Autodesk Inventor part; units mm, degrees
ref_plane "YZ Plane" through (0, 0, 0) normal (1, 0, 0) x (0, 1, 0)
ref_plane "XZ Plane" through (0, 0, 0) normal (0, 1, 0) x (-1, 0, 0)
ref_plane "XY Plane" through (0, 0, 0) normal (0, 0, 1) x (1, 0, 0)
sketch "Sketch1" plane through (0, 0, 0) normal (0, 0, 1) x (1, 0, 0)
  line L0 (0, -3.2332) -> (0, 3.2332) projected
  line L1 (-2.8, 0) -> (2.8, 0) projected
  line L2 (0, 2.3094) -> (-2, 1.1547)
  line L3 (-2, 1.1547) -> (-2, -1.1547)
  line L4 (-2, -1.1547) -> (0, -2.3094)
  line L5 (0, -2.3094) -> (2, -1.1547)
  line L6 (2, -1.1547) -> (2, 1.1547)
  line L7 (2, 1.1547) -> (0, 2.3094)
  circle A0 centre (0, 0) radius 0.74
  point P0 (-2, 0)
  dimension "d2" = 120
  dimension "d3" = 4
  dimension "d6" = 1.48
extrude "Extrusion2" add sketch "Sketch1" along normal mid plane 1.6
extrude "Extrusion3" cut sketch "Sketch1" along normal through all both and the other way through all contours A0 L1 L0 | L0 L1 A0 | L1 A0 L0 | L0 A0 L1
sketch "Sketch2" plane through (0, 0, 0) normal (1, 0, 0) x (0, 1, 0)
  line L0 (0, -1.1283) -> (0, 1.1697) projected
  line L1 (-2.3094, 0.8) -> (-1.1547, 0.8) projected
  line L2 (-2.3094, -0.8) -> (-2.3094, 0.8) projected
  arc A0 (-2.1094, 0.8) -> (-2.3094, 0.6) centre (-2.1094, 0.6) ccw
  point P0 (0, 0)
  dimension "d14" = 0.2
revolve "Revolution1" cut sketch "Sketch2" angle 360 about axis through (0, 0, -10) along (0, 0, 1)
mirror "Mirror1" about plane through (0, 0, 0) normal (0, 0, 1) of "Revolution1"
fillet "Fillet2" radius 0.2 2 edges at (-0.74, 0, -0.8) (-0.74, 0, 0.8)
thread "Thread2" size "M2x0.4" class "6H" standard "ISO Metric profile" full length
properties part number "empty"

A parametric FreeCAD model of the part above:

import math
import FreeCAD as App
import Part
import Sketcher

V = App.Vector
Q = App.Units.Quantity


def edges_at(feature, points):
    """Names of the edges that pass closest to the given points."""
    edges = feature.Shape.Edges
    near = lambda p: min(range(len(edges)), key=lambda i: edges[i].distToShape(Part.Vertex(*p))[0])
    return sorted({f"Edge{near(p) + 1}" for p in points})

doc = App.newDocument("Part")
params = doc.addObject("Spreadsheet::Sheet", "Params")
for row, (alias, value) in enumerate([
    ("pad1_length", "1.6 mm"),
    ("sketch2_diameter", "1.48 mm"),
    ("sketch3_radius", "0.2 mm"),
    ("groove_angle", "360 deg"),
    ("fillet_radius", "0.2 mm"),
], start=1):
    params.set(f"A{row}", alias)
    params.set(f"B{row}", "=" + value)
    params.setAlias(f"B{row}", alias)

body = doc.addObject("PartDesign::Body", "Body")

# Sketch on XY plane
sketch1 = doc.addObject("Sketcher::SketchObject", "Sketch")
body.addObject(sketch1)
sketch1.AttachmentSupport = (doc.XY_Plane, [""])
sketch1.MapMode = "FlatFace"
sketch1.addGeometry(Part.LineSegment(V(-2, -1.2, 0), V(0, -2.3, 0)), False)
sketch1.addGeometry(Part.LineSegment(V(0, -2.3, 0), V(2, -1.2, 0)), False)
sketch1.addGeometry(Part.LineSegment(V(2, -1.2, 0), V(2, 1.2, 0)), False)
sketch1.addGeometry(Part.LineSegment(V(2, 1.2, 0), V(0, 2.3, 0)), False)
sketch1.addGeometry(Part.LineSegment(V(0, 2.3, 0), V(-2, 1.2, 0)), False)
sketch1.addGeometry(Part.LineSegment(V(-2, 1.2, 0), V(-2, -1.2, 0)), False)
sketch1.addConstraint(Sketcher.Constraint("Coincident", 0, 2, 1, 1))
sketch1.addConstraint(Sketcher.Constraint("Coincident", 1, 2, 2, 1))
sketch1.addConstraint(Sketcher.Constraint("Coincident", 2, 2, 3, 1))
sketch1.addConstraint(Sketcher.Constraint("Coincident", 3, 2, 4, 1))
sketch1.addConstraint(Sketcher.Constraint("Coincident", 4, 2, 5, 1))
sketch1.addConstraint(Sketcher.Constraint("Coincident", 5, 2, 0, 1))
sketch1.addConstraint(Sketcher.Constraint("Vertical", 2))
sketch1.addConstraint(Sketcher.Constraint("Vertical", 5))
sketch1.addConstraint(Sketcher.Constraint("Symmetric", 0, 2, 3, 2, -1, 1))
sketch1.addConstraint(Sketcher.Constraint("Symmetric", 1, 2, 4, 2, -1, 1))
sketch1.addConstraint(Sketcher.Constraint("PointOnObject", 0, 2, -2))
sketch1.addConstraint(Sketcher.Constraint("Parallel", 0, 3))
sketch1.addConstraint(Sketcher.Constraint("Horizontal", 2, 2, 4, 2))
sketch1.addConstraint(Sketcher.Constraint("DistanceX", 4, 2, 2, 2, Q("4 mm")))
sketch1.addConstraint(Sketcher.Constraint("Angle", 0, Q("-30 deg")))
sketch1.addConstraint(Sketcher.Constraint("DistanceY", 2, 1, 2, 2, Q("2.3094 mm")))
pad1 = doc.addObject("PartDesign::Pad", "Pad")
body.addObject(pad1)
pad1.Profile = sketch1
pad1.setExpression("Length", "Params.pad1_length")
pad1.Midplane = True

# Sketch on XY plane
sketch2 = doc.addObject("Sketcher::SketchObject", "Sketch001")
body.addObject(sketch2)
sketch2.AttachmentSupport = (doc.XY_Plane, [""])
sketch2.MapMode = "FlatFace"
sketch2.addGeometry(Part.Circle(V(0, 0, 0), V(0, 0, 1), 0.7), False)
sketch2.addConstraint(Sketcher.Constraint("Coincident", 0, 3, -1, 1))
sketch2.addConstraint(Sketcher.Constraint("Diameter", 0, Q("1.48 mm")))
sketch2.setExpression("Constraints[1]", "Params.sketch2_diameter")
pocket1 = doc.addObject("PartDesign::Pocket", "Pocket")
body.addObject(pocket1)
pocket1.Profile = sketch2
pocket1.Type = "ThroughAll"
pocket1.Midplane = True

# Sketch on YZ plane
sketch3 = doc.addObject("Sketcher::SketchObject", "Sketch002")
body.addObject(sketch3)
sketch3.AttachmentSupport = (doc.YZ_Plane, [""])
sketch3.MapMode = "FlatFace"
sketch3.addGeometry(Part.LineSegment(V(-2.11, 0.8, 0), V(-2.31, 0.8, 0)), False)
sketch3.addGeometry(Part.LineSegment(V(-2.31, 0.8, 0), V(-2.31, 0.6, 0)), False)
sketch3.addGeometry(Part.ArcOfCircle(Part.Circle(V(-2.11, 0.6, 0), V(0, 0, 1), 0.2), math.radians(90), math.radians(180)), False)
sketch3.addConstraint(Sketcher.Constraint("Coincident", 0, 2, 1, 1))
sketch3.addConstraint(Sketcher.Constraint("Tangent", 1, 2, 2, 2))
sketch3.addConstraint(Sketcher.Constraint("Tangent", 2, 1, 0, 1))
sketch3.addConstraint(Sketcher.Constraint("Horizontal", 0))
sketch3.addConstraint(Sketcher.Constraint("Vertical", 1))
sketch3.addConstraint(Sketcher.Constraint("Radius", 2, Q("0.2 mm")))
sketch3.addConstraint(Sketcher.Constraint("DistanceY", -1, 1, 2, 3, Q("0.6 mm")))
sketch3.addConstraint(Sketcher.Constraint("DistanceX", 2, 3, -1, 1, Q("2.1094 mm")))
sketch3.setExpression("Constraints[5]", "Params.sketch3_radius")
groove = doc.addObject("PartDesign::Groove", "Groove")
body.addObject(groove)
groove.Profile = sketch3
groove.ReferenceAxis = (sketch3, ["V_Axis"])
groove.setExpression("Angle", "Params.groove_angle")
doc.recompute()

mirrored = doc.addObject("PartDesign::Mirrored", "Mirrored")
body.addObject(mirrored)
mirrored.Originals = [groove]
mirrored.MirrorPlane = (doc.XY_Plane, [""])
body.Tip = mirrored
doc.recompute()

fillet = doc.addObject("PartDesign::Fillet", "Fillet")
body.addObject(fillet)
fillet.Base = (mirrored, edges_at(mirrored, [(-0.74, 0, -0.8), (-0.74, 0, 0.8)]))
fillet.setExpression("Radius", "Params.fillet_radius")

doc.recompute()
